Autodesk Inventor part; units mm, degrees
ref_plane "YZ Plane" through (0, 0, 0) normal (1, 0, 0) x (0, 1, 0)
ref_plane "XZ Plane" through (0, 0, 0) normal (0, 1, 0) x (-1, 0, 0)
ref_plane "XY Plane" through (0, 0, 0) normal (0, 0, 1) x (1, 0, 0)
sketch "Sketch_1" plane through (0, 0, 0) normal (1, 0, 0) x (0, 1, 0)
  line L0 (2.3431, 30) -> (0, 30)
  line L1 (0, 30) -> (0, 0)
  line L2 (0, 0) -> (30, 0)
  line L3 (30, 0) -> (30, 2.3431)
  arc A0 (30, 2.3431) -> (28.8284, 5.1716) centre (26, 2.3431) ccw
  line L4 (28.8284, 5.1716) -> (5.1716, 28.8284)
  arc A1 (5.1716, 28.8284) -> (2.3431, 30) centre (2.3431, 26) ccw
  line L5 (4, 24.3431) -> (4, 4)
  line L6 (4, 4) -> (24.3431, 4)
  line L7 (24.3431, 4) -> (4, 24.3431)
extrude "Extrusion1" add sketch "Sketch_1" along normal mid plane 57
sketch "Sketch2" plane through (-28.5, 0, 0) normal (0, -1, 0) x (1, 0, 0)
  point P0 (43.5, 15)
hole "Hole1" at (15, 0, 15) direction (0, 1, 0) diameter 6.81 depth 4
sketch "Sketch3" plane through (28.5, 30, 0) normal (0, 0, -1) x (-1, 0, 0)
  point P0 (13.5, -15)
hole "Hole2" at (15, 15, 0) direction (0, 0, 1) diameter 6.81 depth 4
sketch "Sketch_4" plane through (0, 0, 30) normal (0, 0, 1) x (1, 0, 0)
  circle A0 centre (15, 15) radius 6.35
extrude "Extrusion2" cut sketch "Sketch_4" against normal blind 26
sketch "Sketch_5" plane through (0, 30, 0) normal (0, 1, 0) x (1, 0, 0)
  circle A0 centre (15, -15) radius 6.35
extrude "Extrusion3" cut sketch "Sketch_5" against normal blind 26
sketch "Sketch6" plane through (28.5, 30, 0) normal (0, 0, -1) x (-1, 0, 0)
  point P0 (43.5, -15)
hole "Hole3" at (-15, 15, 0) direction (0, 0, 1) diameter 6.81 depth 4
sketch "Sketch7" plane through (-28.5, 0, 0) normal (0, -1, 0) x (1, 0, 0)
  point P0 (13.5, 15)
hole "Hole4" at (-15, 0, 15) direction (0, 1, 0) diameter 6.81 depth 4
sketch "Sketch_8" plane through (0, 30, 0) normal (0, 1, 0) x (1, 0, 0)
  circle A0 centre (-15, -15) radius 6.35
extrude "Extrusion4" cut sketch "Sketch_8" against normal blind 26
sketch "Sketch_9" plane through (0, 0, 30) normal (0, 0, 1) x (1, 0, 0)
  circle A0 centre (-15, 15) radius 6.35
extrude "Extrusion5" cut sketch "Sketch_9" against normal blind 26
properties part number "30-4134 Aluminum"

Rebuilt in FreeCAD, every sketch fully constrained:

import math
import FreeCAD as App
import Part
import Sketcher
from FreeCAD import Vector


def add_polygon(sketch, points):
    """Adds a closed chain of lines whose ends are joined by coincident constraints."""
    first, n = sketch.GeometryCount, len(points)
    for a, b in zip(points, points[1:] + points[:1]):
        sketch.addGeometry(Part.LineSegment(App.Vector(*a, 0), App.Vector(*b, 0)), False)
    for i in range(n):
        sketch.addConstraint(Sketcher.Constraint("Coincident", first + i, 2, first + (i + 1) % n, 1))

doc = App.newDocument("Part")
body = doc.addObject("PartDesign::Body", "Body")

# Sketch on YZ plane
sketch1 = body.newObject("Sketcher::SketchObject", "Sketch")
sketch1.AttachmentSupport = (doc.getObject("YZ_Plane"), [""])
sketch1.MapMode = "FlatFace"
sketch1.addGeometry(Part.ArcOfCircle(Part.Circle(Vector(2.3, 26, 0), Vector(0, 0, 1), 4), math.radians(45), math.radians(90)), False)  # 0
sketch1.addGeometry(Part.LineSegment(Vector(2.3, 30, 0), Vector(0, 30, 0)), False)  # 1
sketch1.addGeometry(Part.LineSegment(Vector(0, 30, 0), Vector(0, 0, 0)), False)  # 2
sketch1.addGeometry(Part.LineSegment(Vector(0, 0, 0), Vector(30, 0, 0)), False)  # 3
sketch1.addGeometry(Part.LineSegment(Vector(30, 0, 0), Vector(30, 2.3, 0)), False)  # 4
sketch1.addGeometry(Part.ArcOfCircle(Part.Circle(Vector(26, 2.3, 0), Vector(0, 0, 1), 4), math.radians(0), math.radians(45)), False)  # 5
sketch1.addGeometry(Part.LineSegment(Vector(28.8, 5.2, 0), Vector(5.2, 28.8, 0)), False)  # 6
add_polygon(sketch1, [(4, 4), (4, 24.3), (24.3, 4)])  # lines 7-9
sketch1.addConstraint([
    Sketcher.Constraint("Tangent", 0, 2, 1, 1),
    Sketcher.Constraint("Coincident", 1, 2, 2, 1),
    Sketcher.Constraint("Coincident", 2, 2, 3, 1),
    Sketcher.Constraint("Coincident", 3, 2, 4, 1),
    Sketcher.Constraint("Tangent", 4, 2, 5, 1),
    Sketcher.Constraint("Tangent", 5, 2, 6, 1),
    Sketcher.Constraint("Tangent", 6, 2, 0, 1),
    Sketcher.Constraint("Horizontal", 1),
    Sketcher.Constraint("Vertical", 2),
    Sketcher.Constraint("Horizontal", 3),
    Sketcher.Constraint("Vertical", 4),
    Sketcher.Constraint("Vertical", 7),
    Sketcher.Constraint("Horizontal", 9),
    Sketcher.Constraint("Coincident", 2, 2, -1, 1),
    Sketcher.Constraint("Equal", 0, 5),
    Sketcher.Constraint("Parallel", 6, 8),
    Sketcher.Constraint("Equal", 3, 2),
    Sketcher.Constraint("Equal", 1, 4),
    Sketcher.Constraint("Radius", 0, 4.0),
    Sketcher.Constraint("DistanceX", 3, 1, 3, 2, 30.0),
    Sketcher.Constraint("DistanceX", -1, 1, 7, 2, 4.0),
    Sketcher.Constraint("DistanceY", -1, 1, 8, 2, 4.0),
    Sketcher.Constraint("DistanceX", 1, 2, 1, 1, 2.343),
    Sketcher.Constraint("DistanceX", 9, 2, 9, 1, 20.343),
])
pad1 = body.newObject("PartDesign::Pad", "Pad")
pad1.Profile = sketch1
pad1.Length = 57
pad1.Midplane = True

# Sketch on XZ plane
sketch2 = body.newObject("Sketcher::SketchObject", "Sketch001")
sketch2.AttachmentSupport = (doc.getObject("XZ_Plane"), [""])
sketch2.MapMode = "FlatFace"
sketch2.addGeometry(Part.Circle(Vector(15, 15, 0), Vector(0, 0, 1), 3.4), False)
sketch2.addConstraint([
    Sketcher.Constraint("Diameter", 0, 6.81),
    Sketcher.Constraint("DistanceX", -1, 1, 0, 3, 15.0),
    Sketcher.Constraint("DistanceY", -1, 1, 0, 3, 15.0),
])
doc.recompute()
hole = body.newObject("PartDesign::Hole", "Hole")
hole.Profile = sketch2
hole.ThreadType = "None"
hole.Diameter = 6.81
hole.DepthType = "Dimension"
hole.Depth = 4
hole.DrillPoint = "Flat"

# Sketch on XY plane
sketch3 = body.newObject("Sketcher::SketchObject", "Sketch002")
sketch3.AttachmentSupport = (doc.getObject("XY_Plane"), [""])
sketch3.MapMode = "FlatFace"
sketch3.addGeometry(Part.Circle(Vector(15, 15, 0), Vector(0, 0, 1), 3.4), False)
sketch3.addConstraint([
    Sketcher.Constraint("Diameter", 0, 6.81),
    Sketcher.Constraint("DistanceX", -1, 1, 0, 3, 15.0),
    Sketcher.Constraint("DistanceY", -1, 1, 0, 3, 15.0),
])
doc.recompute()
hole2 = body.newObject("PartDesign::Hole", "Hole001")
hole2.Profile = sketch3
hole2.ThreadType = "None"
hole2.Diameter = 6.81
hole2.DepthType = "Dimension"
hole2.Depth = 4
hole2.DrillPoint = "Flat"
hole2.Reversed = True

# Sketch on XY plane
sketch4 = body.newObject("Sketcher::SketchObject", "Sketch003")
sketch4.AttachmentSupport = (doc.getObject("XY_Plane"), [""])
sketch4.MapMode = "FlatFace"
sketch4.AttachmentOffset = App.Placement(Vector(0, 0, 30), App.Rotation())
sketch4.addGeometry(Part.Circle(Vector(15, 15, 0), Vector(0, 0, 1), 6), False)
sketch4.addConstraint([
    Sketcher.Constraint("Diameter", 0, 12.7),
    Sketcher.Constraint("DistanceX", -1, 1, 0, 3, 15.0),
    Sketcher.Constraint("DistanceY", -1, 1, 0, 3, 15.0),
])
pocket1 = body.newObject("PartDesign::Pocket", "Pocket")
pocket1.Profile = sketch4
pocket1.Length = 26

# Sketch on XZ plane
sketch5 = body.newObject("Sketcher::SketchObject", "Sketch004")
sketch5.AttachmentSupport = (doc.getObject("XZ_Plane"), [""])
sketch5.MapMode = "FlatFace"
sketch5.AttachmentOffset = App.Placement(Vector(0, 0, -30), App.Rotation())
sketch5.addGeometry(Part.Circle(Vector(15, 15, 0), Vector(0, 0, 1), 6), False)
sketch5.addConstraint([
    Sketcher.Constraint("Diameter", 0, 12.7),
    Sketcher.Constraint("DistanceX", -1, 1, 0, 3, 15.0),
    Sketcher.Constraint("DistanceY", -1, 1, 0, 3, 15.0),
])
pocket2 = body.newObject("PartDesign::Pocket", "Pocket001")
pocket2.Profile = sketch5
pocket2.Length = 26
pocket2.Reversed = True

# Sketch on XY plane
sketch6 = body.newObject("Sketcher::SketchObject", "Sketch005")
sketch6.AttachmentSupport = (doc.getObject("XY_Plane"), [""])
sketch6.MapMode = "FlatFace"
sketch6.addGeometry(Part.Circle(Vector(-15, 15, 0), Vector(0, 0, 1), 3.4), False)
sketch6.addConstraint([
    Sketcher.Constraint("Diameter", 0, 6.81),
    Sketcher.Constraint("DistanceX", 0, 3, -1, 1, 15.0),
    Sketcher.Constraint("DistanceY", -1, 1, 0, 3, 15.0),
])
doc.recompute()
hole3 = body.newObject("PartDesign::Hole", "Hole002")
hole3.Profile = sketch6
hole3.ThreadType = "None"
hole3.Diameter = 6.81
hole3.DepthType = "Dimension"
hole3.Depth = 4
hole3.DrillPoint = "Flat"
hole3.Reversed = True

# Sketch on XZ plane
sketch7 = body.newObject("Sketcher::SketchObject", "Sketch006")
sketch7.AttachmentSupport = (doc.getObject("XZ_Plane"), [""])
sketch7.MapMode = "FlatFace"
sketch7.addGeometry(Part.Circle(Vector(-15, 15, 0), Vector(0, 0, 1), 3.4), False)
sketch7.addConstraint([
    Sketcher.Constraint("Diameter", 0, 6.81),
    Sketcher.Constraint("DistanceX", 0, 3, -1, 1, 15.0),
    Sketcher.Constraint("DistanceY", -1, 1, 0, 3, 15.0),
])
doc.recompute()
hole4 = body.newObject("PartDesign::Hole", "Hole003")
hole4.Profile = sketch7
hole4.ThreadType = "None"
hole4.Diameter = 6.81
hole4.DepthType = "Dimension"
hole4.Depth = 4
hole4.DrillPoint = "Flat"

# Sketch on XZ plane
sketch8 = body.newObject("Sketcher::SketchObject", "Sketch007")
sketch8.AttachmentSupport = (doc.getObject("XZ_Plane"), [""])
sketch8.MapMode = "FlatFace"
sketch8.AttachmentOffset = App.Placement(Vector(0, 0, -30), App.Rotation())
sketch8.addGeometry(Part.Circle(Vector(-15, 15, 0), Vector(0, 0, 1), 6), False)
sketch8.addConstraint([
    Sketcher.Constraint("Diameter", 0, 12.7),
    Sketcher.Constraint("DistanceX", 0, 3, -1, 1, 15.0),
    Sketcher.Constraint("DistanceY", -1, 1, 0, 3, 15.0),
])
pocket3 = body.newObject("PartDesign::Pocket", "Pocket002")
pocket3.Profile = sketch8
pocket3.Length = 26
pocket3.Reversed = True

# Sketch on XY plane
sketch9 = body.newObject("Sketcher::SketchObject", "Sketch008")
sketch9.AttachmentSupport = (doc.getObject("XY_Plane"), [""])
sketch9.MapMode = "FlatFace"
sketch9.AttachmentOffset = App.Placement(Vector(0, 0, 30), App.Rotation())
sketch9.addGeometry(Part.Circle(Vector(-15, 15, 0), Vector(0, 0, 1), 6), False)
sketch9.addConstraint([
    Sketcher.Constraint("Diameter", 0, 12.7),
    Sketcher.Constraint("DistanceX", 0, 3, -1, 1, 15.0),
    Sketcher.Constraint("DistanceY", -1, 1, 0, 3, 15.0),
])
pocket4 = body.newObject("PartDesign::Pocket", "Pocket003")
pocket4.Profile = sketch9
pocket4.Length = 26

doc.recompute()
